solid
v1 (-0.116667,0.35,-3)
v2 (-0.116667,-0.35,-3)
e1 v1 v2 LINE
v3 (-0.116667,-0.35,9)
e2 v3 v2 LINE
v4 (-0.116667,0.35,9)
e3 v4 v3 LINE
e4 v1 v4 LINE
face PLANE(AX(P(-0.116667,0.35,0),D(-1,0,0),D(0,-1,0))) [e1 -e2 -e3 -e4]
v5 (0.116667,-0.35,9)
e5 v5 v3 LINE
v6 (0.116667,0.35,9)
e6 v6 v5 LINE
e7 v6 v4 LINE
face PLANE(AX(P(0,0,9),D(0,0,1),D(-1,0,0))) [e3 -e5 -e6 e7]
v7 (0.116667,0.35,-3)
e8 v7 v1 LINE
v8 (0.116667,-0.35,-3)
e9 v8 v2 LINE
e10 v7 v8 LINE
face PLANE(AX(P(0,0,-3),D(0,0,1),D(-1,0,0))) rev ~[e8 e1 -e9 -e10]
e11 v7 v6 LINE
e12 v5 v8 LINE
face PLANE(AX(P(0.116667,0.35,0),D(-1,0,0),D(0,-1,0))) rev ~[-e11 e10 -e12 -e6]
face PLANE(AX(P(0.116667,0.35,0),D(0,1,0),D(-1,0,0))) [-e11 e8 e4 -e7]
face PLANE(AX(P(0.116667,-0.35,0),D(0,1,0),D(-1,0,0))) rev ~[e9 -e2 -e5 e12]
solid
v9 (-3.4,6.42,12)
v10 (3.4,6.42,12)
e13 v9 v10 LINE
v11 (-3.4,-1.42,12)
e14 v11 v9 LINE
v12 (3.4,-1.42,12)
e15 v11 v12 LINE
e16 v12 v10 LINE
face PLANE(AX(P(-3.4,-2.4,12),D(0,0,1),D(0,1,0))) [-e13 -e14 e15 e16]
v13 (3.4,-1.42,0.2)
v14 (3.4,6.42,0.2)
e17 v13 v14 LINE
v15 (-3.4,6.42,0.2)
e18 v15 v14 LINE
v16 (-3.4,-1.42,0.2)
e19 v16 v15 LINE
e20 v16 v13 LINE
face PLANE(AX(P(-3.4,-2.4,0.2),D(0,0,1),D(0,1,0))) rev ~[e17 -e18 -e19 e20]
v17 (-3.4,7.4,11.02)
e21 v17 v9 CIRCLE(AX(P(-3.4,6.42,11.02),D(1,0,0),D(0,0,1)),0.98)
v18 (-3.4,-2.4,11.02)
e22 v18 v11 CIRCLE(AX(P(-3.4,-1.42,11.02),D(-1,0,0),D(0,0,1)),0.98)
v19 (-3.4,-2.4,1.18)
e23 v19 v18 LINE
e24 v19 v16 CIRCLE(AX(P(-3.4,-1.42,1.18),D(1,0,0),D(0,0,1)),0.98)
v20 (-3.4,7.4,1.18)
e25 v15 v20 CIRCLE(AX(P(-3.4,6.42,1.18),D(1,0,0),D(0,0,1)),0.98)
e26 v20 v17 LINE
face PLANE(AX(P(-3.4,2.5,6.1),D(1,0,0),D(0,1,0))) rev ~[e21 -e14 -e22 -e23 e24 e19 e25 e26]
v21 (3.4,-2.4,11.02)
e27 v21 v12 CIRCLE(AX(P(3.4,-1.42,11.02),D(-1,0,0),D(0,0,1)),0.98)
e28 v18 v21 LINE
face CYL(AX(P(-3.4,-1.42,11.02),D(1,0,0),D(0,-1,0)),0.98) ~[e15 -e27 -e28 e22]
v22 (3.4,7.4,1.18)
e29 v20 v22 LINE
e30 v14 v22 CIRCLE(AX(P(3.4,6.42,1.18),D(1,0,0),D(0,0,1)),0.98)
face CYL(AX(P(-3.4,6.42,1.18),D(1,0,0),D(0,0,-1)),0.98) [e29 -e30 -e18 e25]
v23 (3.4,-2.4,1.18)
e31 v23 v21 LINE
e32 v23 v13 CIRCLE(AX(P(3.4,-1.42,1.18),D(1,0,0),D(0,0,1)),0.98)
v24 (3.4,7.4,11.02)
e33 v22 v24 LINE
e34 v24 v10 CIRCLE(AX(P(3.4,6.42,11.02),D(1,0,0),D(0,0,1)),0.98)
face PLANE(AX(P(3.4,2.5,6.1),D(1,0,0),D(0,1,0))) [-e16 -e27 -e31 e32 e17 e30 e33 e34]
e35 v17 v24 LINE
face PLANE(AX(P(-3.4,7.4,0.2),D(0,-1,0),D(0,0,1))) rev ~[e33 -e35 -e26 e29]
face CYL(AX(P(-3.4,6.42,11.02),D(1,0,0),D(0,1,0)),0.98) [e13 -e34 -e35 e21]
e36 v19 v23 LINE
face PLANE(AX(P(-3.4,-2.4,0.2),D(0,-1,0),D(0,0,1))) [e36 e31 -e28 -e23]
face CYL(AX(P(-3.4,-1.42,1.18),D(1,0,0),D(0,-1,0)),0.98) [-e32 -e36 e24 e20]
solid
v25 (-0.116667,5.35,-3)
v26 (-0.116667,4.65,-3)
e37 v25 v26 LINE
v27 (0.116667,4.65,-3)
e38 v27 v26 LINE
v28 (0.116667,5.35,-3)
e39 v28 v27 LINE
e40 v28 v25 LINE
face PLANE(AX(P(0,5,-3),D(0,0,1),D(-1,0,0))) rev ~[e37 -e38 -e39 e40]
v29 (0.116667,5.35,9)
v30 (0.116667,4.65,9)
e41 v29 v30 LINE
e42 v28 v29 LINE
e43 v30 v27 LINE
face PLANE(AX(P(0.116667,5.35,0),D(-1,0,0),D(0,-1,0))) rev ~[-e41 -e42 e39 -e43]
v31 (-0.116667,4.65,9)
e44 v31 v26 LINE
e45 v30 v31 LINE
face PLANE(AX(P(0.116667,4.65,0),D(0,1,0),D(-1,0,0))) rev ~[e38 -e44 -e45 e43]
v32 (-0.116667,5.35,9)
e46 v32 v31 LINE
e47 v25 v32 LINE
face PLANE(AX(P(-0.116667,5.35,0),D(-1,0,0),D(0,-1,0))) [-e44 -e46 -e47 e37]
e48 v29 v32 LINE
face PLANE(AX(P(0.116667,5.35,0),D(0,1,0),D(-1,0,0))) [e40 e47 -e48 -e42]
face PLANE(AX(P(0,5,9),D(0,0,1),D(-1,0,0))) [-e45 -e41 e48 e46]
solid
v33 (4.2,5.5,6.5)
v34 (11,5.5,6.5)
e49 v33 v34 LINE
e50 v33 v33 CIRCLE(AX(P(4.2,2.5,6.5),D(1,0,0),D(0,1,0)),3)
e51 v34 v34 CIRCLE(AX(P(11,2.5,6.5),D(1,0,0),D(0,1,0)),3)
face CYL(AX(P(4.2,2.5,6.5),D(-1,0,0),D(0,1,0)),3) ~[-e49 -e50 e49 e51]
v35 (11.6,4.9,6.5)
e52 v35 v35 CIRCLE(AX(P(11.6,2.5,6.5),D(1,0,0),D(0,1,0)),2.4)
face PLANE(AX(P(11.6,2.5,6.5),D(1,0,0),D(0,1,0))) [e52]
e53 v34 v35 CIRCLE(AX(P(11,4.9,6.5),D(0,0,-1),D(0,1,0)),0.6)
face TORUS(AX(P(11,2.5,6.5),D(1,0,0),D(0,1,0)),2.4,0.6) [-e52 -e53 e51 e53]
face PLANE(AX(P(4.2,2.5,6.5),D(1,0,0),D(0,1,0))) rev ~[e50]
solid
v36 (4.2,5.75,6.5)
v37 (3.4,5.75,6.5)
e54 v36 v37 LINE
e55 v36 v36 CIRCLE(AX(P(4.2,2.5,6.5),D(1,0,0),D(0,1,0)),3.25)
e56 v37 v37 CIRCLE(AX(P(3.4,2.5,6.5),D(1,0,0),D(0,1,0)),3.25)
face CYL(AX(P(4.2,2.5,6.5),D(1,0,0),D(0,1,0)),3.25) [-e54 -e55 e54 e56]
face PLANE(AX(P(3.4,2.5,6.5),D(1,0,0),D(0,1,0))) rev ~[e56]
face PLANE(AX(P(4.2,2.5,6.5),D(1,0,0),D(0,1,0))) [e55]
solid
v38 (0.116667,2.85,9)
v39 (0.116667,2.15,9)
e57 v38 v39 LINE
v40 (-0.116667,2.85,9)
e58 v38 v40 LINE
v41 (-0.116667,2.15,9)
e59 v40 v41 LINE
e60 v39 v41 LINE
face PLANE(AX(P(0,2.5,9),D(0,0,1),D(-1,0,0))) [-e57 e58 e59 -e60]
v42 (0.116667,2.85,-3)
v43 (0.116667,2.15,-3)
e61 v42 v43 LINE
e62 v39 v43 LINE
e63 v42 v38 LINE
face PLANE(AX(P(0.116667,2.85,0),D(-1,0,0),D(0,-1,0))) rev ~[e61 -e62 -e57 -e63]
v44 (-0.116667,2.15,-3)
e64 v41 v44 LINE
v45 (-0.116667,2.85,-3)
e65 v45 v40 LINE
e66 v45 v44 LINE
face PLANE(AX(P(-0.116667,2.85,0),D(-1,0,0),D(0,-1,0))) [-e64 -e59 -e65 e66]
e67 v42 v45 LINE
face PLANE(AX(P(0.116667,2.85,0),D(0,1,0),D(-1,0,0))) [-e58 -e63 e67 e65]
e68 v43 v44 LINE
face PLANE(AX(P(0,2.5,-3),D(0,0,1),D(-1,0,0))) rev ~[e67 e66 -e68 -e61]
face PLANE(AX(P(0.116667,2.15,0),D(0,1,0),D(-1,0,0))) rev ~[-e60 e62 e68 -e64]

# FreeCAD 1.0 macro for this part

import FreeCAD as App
import Part
import Sketcher
from FreeCAD import Vector


def edges_at(feature, points):
    """Names of the edges that pass closest to the given points."""
    edges = feature.Shape.Edges
    near = lambda p: min(range(len(edges)), key=lambda i: edges[i].distToShape(Part.Vertex(*p))[0])
    return sorted({f"Edge{near(p) + 1}" for p in points})


def add_polygon(sketch, points):
    """Adds a closed chain of lines whose ends are joined by coincident constraints."""
    first, n = sketch.GeometryCount, len(points)
    for a, b in zip(points, points[1:] + points[:1]):
        sketch.addGeometry(Part.LineSegment(App.Vector(*a, 0), App.Vector(*b, 0)), False)
    for i in range(n):
        sketch.addConstraint(Sketcher.Constraint("Coincident", first + i, 2, first + (i + 1) % n, 1))

doc = App.newDocument("Part")
body = doc.addObject("PartDesign::Body", "Body")

# Sketch on YZ plane
sketch1 = body.newObject("Sketcher::SketchObject", "Sketch")
sketch1.AttachmentSupport = (doc.getObject("YZ_Plane"), [""])
sketch1.MapMode = "FlatFace"
sketch1.AttachmentOffset = App.Placement(Vector(0, 0, 4.2), App.Rotation())
sketch1.addGeometry(Part.Circle(Vector(2.5, 6.5, 0), Vector(0, 0, 1), 3.2), False)
sketch1.addConstraint([
    Sketcher.Constraint("Diameter", 0, 6.5),
    Sketcher.Constraint("DistanceX", -1, 1, 0, 3, 2.5),
    Sketcher.Constraint("DistanceY", -1, 1, 0, 3, 6.5),
])
pad1 = body.newObject("PartDesign::Pad", "Pad")
pad1.Profile = sketch1
pad1.Length = 0.8
pad1.Reversed = True
body2 = doc.addObject("PartDesign::Body", "Body001")
body2.AllowCompound = True

# Sketch on XY plane
sketch2 = body2.newObject("Sketcher::SketchObject", "Sketch001")
sketch2.AttachmentSupport = (doc.getObject("XY_Plane001"), [""])
sketch2.MapMode = "FlatFace"
add_polygon(sketch2, [(0.12, -0.35), (0.12, 0.35), (-0.12, 0.35), (-0.12, -0.35)])  # lines 0-3
add_polygon(sketch2, [(0.12, 2.15), (0.12, 2.85), (-0.12, 2.85), (-0.12, 2.15)])  # lines 4-7
add_polygon(sketch2, [(0.12, 4.65), (0.12, 5.35), (-0.12, 5.35), (-0.12, 4.65)])  # lines 8-11
sketch2.addConstraint([
    Sketcher.Constraint("Vertical", 0),
    Sketcher.Constraint("Horizontal", 1),
    Sketcher.Constraint("Vertical", 2),
    Sketcher.Constraint("Horizontal", 3),
    Sketcher.Constraint("Vertical", 4),
    Sketcher.Constraint("Horizontal", 5),
    Sketcher.Constraint("Vertical", 6),
    Sketcher.Constraint("Horizontal", 7),
    Sketcher.Constraint("Vertical", 8),
    Sketcher.Constraint("Horizontal", 9),
    Sketcher.Constraint("Vertical", 10),
    Sketcher.Constraint("Horizontal", 11),
    Sketcher.Constraint("Symmetric", 0, 2, 2, 2, -1, 1),
    Sketcher.Constraint("Vertical", 3, 2, 4, 2),
    Sketcher.Constraint("Vertical", 2, 2, 5, 2),
    Sketcher.Constraint("Vertical", 7, 2, 8, 2),
    Sketcher.Constraint("Vertical", 6, 2, 9, 2),
    Sketcher.Constraint("Equal", 2, 4),
    Sketcher.Constraint("Equal", 6, 8),
    Sketcher.Constraint("DistanceY", 0, 1, 0, 2, 0.7),
    Sketcher.Constraint("DistanceY", 0, 2, 8, 2, 5.0),
    Sketcher.Constraint("DistanceY", 0, 2, 4, 2, 2.5),
    Sketcher.Constraint("DistanceX", 1, 2, 1, 1, 0.233334),
])
pad2 = body2.newObject("PartDesign::Pad", "Pad001")
pad2.Profile = sketch2
pad2.Type = "TwoLengths"
pad2.Length = 9
pad2.Length2 = 3
body3 = doc.addObject("PartDesign::Body", "Body002")

# Sketch on YZ plane
sketch3 = body3.newObject("Sketcher::SketchObject", "Sketch002")
sketch3.AttachmentSupport = (doc.getObject("YZ_Plane002"), [""])
sketch3.MapMode = "FlatFace"
sketch3.AttachmentOffset = App.Placement(Vector(0, 0, 4.2), App.Rotation())
sketch3.addGeometry(Part.Circle(Vector(2.5, 6.5, 0), Vector(0, 0, 1), 3), False)
sketch3.addConstraint([
    Sketcher.Constraint("Diameter", 0, 6.0),
    Sketcher.Constraint("DistanceX", -1, 1, 0, 3, 2.5),
    Sketcher.Constraint("DistanceY", -1, 1, 0, 3, 6.5),
])
pad3 = body3.newObject("PartDesign::Pad", "Pad002")
pad3.Profile = sketch3
pad3.Length = 7.4
doc.recompute()

fillet = body3.newObject("PartDesign::Fillet", "Fillet")
fillet.Base = (pad3, edges_at(pad3, [(11.6, -0.5, 6.5)]))
fillet.Radius = 0.6
body4 = doc.addObject("PartDesign::Body", "Body003")

# Sketch on YZ plane
sketch4 = body4.newObject("Sketcher::SketchObject", "Sketch003")
sketch4.AttachmentSupport = (doc.getObject("YZ_Plane003"), [""])
sketch4.MapMode = "FlatFace"
sketch4.AttachmentOffset = App.Placement(Vector(0, 0, -3.4), App.Rotation())
add_polygon(sketch4, [(-2, 12), (-2, 0), (7, 0), (7, 12)])  # lines 0-3
sketch4.addConstraint([
    Sketcher.Constraint("Vertical", 0),
    Sketcher.Constraint("Horizontal", 1),
    Sketcher.Constraint("Vertical", 2),
    Sketcher.Constraint("Horizontal", 3),
    Sketcher.Constraint("DistanceX", 1, 1, 1, 2, 9.8),
    Sketcher.Constraint("DistanceY", 0, 2, 0, 1, 11.8),
    Sketcher.Constraint("DistanceY", -1, 1, 2, 2, 12.0),
    Sketcher.Constraint("DistanceX", 0, 2, -1, 1, 2.4),
])
pad4 = body4.newObject("PartDesign::Pad", "Pad003")
pad4.Profile = sketch4
pad4.Length = 6.8
doc.recompute()

fillet2 = body4.newObject("PartDesign::Fillet", "Fillet001")
fillet2.Base = (pad4, edges_at(pad4, [
    (0, -2.4, 12),
    (0, 7.4, 12),
    (0, -2.4, 0.2),
    (0, 7.4, 0.2),
]))
fillet2.Radius = 0.98

doc.recompute()
